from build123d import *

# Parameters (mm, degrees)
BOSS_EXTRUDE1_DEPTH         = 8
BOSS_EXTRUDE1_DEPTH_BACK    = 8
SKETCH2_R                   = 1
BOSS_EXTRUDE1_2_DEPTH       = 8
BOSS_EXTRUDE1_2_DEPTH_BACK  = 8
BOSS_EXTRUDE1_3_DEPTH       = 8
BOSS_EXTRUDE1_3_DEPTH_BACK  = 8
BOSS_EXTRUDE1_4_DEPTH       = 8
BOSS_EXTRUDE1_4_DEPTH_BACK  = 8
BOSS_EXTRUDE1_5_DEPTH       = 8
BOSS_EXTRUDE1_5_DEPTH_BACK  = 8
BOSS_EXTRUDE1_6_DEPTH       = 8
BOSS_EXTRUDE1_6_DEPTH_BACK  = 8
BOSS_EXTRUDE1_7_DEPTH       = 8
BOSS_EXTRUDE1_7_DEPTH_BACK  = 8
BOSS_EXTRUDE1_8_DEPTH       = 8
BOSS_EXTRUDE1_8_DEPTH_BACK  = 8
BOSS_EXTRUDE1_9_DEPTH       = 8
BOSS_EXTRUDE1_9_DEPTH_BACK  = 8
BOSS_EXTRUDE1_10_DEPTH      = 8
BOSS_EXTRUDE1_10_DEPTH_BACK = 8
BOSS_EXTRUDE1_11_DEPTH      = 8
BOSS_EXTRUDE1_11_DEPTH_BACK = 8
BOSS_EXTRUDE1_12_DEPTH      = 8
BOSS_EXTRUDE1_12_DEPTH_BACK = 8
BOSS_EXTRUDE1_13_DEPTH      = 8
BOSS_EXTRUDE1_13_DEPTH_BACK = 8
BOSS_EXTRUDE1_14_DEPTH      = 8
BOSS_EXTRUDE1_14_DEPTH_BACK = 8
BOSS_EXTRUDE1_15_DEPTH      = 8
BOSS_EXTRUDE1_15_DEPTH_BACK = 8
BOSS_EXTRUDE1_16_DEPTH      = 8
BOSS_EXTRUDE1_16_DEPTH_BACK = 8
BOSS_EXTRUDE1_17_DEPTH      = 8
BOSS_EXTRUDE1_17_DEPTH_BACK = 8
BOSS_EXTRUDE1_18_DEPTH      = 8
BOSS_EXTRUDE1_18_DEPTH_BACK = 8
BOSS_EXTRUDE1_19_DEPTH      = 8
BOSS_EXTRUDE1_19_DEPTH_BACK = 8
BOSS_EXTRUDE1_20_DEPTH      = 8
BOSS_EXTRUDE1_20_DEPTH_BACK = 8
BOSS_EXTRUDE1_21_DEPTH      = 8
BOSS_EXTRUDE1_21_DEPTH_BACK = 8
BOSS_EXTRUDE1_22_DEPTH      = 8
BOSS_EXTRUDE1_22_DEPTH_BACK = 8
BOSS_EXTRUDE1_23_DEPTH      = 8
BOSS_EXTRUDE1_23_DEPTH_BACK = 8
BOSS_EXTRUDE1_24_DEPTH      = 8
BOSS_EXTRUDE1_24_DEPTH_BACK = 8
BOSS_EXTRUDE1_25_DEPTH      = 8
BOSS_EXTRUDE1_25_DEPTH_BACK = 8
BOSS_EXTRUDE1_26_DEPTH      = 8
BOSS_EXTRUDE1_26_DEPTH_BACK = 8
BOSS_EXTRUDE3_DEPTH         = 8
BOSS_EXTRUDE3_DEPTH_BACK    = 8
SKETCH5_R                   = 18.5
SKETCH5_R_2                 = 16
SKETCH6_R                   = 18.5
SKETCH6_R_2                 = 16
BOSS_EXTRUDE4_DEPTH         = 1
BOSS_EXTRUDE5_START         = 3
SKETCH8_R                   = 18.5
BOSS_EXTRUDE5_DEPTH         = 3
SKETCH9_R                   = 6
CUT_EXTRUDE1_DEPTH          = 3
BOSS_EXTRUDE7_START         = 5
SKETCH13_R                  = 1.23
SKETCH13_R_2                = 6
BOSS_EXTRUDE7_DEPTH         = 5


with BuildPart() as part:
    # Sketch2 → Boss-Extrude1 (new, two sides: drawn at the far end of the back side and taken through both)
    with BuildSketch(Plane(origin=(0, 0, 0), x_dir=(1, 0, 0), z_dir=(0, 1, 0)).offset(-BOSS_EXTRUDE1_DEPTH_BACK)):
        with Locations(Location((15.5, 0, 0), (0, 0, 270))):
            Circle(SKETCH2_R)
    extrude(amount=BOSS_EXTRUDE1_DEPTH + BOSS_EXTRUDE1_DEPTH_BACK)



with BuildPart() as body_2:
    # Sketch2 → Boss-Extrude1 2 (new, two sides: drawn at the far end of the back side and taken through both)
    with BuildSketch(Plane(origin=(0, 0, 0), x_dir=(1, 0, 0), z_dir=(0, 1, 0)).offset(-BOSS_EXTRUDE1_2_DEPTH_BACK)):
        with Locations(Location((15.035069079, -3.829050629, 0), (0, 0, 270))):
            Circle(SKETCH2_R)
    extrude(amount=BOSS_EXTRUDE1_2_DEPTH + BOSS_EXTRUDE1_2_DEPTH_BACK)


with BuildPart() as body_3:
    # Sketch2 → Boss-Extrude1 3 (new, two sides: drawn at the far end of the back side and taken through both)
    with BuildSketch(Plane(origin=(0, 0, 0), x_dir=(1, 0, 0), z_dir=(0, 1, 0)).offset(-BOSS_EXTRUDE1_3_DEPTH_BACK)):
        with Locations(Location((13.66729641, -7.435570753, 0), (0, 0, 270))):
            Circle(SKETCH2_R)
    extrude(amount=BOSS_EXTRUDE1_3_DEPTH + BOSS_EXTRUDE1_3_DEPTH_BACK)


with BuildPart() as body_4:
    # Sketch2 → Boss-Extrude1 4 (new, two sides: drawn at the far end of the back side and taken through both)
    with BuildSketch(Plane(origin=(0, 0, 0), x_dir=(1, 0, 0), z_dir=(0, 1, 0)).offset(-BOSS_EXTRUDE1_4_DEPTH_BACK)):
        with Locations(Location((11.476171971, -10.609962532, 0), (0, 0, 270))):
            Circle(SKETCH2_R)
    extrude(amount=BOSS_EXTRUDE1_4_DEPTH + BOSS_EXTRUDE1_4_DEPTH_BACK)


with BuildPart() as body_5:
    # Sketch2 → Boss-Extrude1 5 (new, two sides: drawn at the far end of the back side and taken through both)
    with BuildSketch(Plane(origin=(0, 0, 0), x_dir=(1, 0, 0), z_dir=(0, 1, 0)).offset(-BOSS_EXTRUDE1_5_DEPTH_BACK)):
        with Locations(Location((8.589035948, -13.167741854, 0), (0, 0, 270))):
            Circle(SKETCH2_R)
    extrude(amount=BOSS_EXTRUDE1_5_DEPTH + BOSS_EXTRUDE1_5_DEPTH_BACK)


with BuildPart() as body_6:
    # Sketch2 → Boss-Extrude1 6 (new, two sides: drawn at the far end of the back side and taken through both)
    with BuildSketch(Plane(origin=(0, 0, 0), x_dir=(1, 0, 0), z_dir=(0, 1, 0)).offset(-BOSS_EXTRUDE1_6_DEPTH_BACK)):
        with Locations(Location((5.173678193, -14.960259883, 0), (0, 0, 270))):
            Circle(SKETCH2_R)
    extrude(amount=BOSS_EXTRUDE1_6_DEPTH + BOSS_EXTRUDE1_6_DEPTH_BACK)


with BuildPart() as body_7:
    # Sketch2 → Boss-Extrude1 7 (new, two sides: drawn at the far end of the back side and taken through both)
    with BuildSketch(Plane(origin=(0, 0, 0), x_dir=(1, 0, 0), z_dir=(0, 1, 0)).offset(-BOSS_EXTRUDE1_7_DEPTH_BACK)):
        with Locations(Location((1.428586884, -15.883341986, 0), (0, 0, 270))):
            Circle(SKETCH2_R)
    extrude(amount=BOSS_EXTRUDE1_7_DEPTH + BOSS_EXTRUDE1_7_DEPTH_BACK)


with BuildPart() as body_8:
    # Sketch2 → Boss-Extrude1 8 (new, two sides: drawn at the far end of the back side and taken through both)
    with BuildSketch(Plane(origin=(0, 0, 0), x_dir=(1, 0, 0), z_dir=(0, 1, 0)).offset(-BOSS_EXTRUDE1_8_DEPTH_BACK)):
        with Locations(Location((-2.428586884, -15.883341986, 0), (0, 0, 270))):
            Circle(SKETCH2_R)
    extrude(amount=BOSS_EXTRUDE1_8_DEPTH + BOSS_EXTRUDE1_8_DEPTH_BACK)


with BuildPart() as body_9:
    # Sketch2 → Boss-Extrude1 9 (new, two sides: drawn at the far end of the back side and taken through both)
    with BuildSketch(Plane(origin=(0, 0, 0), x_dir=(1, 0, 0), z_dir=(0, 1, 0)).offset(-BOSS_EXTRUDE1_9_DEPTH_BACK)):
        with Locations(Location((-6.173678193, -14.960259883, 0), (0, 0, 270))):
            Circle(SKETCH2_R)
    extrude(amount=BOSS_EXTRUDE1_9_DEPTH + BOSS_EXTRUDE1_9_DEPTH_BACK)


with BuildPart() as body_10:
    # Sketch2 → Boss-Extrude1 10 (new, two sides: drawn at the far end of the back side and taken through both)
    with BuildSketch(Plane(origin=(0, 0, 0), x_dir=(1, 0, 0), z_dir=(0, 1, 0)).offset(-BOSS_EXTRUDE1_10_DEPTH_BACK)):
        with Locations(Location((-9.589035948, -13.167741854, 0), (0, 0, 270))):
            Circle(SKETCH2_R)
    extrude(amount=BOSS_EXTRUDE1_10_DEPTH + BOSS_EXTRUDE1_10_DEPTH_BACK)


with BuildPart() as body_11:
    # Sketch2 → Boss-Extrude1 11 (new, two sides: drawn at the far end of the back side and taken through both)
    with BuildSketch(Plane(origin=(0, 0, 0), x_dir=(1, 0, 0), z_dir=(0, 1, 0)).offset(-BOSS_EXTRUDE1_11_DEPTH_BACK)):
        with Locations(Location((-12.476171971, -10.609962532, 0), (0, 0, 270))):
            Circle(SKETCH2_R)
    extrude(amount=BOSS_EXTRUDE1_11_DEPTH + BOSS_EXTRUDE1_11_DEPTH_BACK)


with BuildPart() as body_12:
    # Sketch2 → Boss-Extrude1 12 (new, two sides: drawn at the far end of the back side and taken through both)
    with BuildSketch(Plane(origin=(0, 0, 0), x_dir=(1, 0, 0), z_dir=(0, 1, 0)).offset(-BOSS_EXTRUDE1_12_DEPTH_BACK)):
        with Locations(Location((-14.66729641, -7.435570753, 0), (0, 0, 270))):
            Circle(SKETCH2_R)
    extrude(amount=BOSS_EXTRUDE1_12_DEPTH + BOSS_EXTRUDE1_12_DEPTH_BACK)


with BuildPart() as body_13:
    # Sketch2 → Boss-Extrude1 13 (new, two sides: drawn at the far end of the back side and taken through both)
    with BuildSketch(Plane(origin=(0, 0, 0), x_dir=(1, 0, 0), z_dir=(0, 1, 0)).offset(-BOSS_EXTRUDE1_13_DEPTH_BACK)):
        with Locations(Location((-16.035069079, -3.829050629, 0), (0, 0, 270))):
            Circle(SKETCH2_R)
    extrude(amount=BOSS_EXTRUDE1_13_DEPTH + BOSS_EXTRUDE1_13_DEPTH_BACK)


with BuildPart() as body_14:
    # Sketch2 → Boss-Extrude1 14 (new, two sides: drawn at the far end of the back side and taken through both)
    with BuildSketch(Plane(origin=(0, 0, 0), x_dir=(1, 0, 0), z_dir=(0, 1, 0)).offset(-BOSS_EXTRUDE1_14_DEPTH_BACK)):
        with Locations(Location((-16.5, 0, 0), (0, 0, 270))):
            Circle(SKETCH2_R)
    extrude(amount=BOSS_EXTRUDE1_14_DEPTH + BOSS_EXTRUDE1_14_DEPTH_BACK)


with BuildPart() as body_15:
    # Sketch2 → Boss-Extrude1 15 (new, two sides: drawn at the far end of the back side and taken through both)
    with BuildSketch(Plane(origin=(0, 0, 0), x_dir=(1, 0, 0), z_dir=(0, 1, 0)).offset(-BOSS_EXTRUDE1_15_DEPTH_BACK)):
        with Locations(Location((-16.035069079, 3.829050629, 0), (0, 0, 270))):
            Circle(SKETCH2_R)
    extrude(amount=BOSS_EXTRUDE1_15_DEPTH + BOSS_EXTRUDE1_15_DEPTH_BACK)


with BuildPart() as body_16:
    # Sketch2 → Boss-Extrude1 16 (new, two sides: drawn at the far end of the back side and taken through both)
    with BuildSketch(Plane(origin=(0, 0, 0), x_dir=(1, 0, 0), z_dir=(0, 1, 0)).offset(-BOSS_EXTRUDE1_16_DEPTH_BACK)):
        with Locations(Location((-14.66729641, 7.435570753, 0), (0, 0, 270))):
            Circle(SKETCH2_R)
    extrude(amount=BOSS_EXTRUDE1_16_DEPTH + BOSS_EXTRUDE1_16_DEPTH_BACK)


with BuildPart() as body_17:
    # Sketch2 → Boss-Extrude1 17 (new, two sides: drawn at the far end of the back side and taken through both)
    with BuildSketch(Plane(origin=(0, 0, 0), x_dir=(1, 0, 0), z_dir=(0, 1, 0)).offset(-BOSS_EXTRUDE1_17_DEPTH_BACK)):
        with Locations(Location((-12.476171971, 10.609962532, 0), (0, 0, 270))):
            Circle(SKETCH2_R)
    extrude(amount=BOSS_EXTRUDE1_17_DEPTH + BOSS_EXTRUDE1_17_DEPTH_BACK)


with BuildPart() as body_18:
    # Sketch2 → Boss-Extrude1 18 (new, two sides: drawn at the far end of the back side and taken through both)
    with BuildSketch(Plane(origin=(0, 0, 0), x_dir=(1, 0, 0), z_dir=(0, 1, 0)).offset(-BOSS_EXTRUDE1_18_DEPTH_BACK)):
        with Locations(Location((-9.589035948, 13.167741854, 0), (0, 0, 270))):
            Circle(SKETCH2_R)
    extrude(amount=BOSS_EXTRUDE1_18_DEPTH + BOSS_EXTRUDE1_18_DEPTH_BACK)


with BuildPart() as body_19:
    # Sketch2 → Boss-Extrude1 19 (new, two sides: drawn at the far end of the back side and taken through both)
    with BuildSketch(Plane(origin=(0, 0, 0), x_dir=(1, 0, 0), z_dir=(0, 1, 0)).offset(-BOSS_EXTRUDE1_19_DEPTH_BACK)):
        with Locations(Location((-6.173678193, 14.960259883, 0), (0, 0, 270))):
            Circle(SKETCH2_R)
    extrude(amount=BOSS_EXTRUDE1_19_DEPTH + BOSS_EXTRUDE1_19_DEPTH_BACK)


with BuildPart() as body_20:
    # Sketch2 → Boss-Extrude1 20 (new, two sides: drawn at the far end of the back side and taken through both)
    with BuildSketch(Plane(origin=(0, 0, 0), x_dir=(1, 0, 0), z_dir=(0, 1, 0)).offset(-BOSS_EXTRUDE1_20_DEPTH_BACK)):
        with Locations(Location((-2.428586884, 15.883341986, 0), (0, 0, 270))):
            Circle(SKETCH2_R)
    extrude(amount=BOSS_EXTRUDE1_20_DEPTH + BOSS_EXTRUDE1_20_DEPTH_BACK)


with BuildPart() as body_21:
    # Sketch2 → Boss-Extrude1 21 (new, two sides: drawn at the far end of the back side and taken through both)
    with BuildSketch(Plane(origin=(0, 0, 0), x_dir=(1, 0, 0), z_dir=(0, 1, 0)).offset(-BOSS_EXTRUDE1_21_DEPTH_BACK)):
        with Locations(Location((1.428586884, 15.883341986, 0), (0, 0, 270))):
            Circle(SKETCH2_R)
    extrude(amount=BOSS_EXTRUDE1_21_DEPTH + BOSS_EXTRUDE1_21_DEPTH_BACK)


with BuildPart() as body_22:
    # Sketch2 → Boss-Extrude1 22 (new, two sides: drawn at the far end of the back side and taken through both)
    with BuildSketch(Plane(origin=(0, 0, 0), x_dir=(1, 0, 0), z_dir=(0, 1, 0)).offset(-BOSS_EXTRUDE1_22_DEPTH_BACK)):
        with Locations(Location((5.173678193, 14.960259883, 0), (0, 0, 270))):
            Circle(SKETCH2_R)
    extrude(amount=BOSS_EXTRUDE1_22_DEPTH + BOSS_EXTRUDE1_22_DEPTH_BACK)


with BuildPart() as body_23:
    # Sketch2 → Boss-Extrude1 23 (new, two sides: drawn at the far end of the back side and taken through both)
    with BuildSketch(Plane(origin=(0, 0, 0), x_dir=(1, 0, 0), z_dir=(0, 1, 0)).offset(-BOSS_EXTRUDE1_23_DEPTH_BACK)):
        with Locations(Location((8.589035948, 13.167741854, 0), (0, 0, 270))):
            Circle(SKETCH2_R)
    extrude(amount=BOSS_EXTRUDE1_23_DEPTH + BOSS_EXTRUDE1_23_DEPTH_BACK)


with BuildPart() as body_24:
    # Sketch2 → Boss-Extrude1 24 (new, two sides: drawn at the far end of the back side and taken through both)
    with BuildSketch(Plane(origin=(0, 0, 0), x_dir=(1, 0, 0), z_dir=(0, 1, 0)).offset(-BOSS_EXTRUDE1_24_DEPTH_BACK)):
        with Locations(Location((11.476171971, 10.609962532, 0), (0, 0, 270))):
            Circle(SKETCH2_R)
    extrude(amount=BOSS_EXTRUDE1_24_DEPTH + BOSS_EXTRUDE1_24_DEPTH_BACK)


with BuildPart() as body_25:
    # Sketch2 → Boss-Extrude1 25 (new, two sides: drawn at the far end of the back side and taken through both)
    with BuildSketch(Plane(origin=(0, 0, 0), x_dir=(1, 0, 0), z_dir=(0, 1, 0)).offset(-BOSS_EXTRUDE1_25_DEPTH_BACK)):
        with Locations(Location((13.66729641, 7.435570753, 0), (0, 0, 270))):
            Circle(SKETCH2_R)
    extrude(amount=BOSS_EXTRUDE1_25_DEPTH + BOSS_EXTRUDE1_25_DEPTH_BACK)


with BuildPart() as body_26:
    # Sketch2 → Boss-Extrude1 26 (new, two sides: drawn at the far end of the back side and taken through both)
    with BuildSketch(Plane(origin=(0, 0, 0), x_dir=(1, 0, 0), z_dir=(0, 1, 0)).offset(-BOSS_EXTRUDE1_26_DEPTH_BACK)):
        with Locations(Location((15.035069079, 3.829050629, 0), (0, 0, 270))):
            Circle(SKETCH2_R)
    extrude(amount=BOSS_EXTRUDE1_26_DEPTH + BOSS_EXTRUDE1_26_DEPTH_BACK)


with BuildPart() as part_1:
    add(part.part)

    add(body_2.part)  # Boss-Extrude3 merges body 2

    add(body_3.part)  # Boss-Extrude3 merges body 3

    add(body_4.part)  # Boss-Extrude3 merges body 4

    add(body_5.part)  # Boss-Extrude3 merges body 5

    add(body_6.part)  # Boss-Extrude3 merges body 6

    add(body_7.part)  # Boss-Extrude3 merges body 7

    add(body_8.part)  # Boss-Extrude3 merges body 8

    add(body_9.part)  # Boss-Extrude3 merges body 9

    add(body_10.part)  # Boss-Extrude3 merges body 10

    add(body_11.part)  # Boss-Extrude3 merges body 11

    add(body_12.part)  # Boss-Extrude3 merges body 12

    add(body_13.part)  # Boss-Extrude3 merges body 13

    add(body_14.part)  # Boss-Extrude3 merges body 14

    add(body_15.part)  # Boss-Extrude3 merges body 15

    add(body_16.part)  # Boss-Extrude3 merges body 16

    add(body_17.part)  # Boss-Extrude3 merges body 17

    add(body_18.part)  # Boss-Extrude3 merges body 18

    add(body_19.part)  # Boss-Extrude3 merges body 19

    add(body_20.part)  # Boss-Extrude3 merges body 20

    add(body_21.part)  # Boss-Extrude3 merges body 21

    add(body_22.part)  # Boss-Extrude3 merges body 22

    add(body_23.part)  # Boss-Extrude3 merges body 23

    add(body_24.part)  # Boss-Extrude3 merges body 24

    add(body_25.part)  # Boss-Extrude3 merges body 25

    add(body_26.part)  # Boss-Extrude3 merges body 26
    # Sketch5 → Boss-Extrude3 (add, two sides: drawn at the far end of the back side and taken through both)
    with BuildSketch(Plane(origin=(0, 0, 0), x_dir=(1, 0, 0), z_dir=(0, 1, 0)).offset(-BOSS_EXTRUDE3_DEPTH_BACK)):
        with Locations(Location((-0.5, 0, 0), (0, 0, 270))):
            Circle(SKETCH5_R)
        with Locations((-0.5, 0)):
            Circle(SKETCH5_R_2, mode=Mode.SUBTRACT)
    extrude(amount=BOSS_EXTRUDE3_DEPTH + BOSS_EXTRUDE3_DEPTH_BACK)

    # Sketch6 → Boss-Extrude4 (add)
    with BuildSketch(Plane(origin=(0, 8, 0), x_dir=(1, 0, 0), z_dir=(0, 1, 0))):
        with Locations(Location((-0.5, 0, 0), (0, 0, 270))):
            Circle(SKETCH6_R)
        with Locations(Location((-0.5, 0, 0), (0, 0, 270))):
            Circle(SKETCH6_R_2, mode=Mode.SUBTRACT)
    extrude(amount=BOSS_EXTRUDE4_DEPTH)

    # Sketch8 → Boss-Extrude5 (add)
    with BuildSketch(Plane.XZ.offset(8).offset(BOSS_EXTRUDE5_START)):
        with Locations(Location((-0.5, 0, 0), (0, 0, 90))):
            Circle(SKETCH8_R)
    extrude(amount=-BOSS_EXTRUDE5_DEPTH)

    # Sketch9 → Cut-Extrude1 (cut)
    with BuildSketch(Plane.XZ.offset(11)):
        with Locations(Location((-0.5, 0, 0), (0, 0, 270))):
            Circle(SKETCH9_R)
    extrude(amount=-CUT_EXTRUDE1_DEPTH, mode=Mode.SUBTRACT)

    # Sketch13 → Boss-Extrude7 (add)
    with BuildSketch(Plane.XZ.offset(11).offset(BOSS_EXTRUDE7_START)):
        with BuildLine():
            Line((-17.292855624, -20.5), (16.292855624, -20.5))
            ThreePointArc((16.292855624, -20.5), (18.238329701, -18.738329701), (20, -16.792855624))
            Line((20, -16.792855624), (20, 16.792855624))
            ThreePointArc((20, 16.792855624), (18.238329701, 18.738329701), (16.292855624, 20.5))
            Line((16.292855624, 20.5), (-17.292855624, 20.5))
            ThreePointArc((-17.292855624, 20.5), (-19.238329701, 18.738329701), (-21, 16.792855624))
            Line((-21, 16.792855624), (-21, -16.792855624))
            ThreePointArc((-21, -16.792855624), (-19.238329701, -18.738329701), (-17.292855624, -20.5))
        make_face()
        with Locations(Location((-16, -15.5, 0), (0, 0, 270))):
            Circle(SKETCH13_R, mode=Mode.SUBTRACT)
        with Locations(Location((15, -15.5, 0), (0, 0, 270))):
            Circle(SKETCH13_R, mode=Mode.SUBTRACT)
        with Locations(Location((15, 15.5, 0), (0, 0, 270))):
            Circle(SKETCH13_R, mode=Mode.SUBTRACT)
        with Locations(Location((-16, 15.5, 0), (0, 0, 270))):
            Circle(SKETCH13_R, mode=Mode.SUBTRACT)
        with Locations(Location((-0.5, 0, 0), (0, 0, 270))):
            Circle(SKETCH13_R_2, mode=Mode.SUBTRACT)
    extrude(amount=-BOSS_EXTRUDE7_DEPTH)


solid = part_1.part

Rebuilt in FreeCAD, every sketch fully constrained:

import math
import FreeCAD as App
import Part
import Sketcher
Q = App.Units.Quantity

doc = App.newDocument("Part")
body = doc.addObject("PartDesign::Body", "Body")

sketch1 = doc.addObject("Sketcher::SketchObject", "Sketch")
body.addObject(sketch1)
sketch1.AttachmentSupport = (doc.XZ_Plane, [""])
sketch1.MapMode = "FlatFace"
sketch1.addGeometry(Part.Circle(App.Vector(15.5, 0, 0), App.Vector(0, 0, 1), 1), False)
sketch1.addConstraint([
    Sketcher.Constraint("PointOnObject", 0, 3, -1),
    Sketcher.Constraint("Diameter", 0, Q("2 mm")),
    Sketcher.Constraint("DistanceX", -1, 1, 0, 3, Q("15.5 mm")),
])
pad1 = doc.addObject("PartDesign::Pad", "Pad")
body.addObject(pad1)
pad1.Profile = sketch1
pad1.Type = "TwoLengths"
pad1.Length = 8
pad1.Length2 = 8
pad1.Reversed = True
body2 = doc.addObject("PartDesign::Body", "Body001")

sketch2 = doc.addObject("Sketcher::SketchObject", "Sketch001")
body2.addObject(sketch2)
sketch2.AttachmentSupport = (doc.getObject("XZ_Plane001"), [""])
sketch2.MapMode = "FlatFace"
sketch2.addGeometry(Part.Circle(App.Vector(15, 3.8, 0), App.Vector(0, 0, 1), 1), False)
sketch2.addConstraint([
    Sketcher.Constraint("Diameter", 0, Q("2 mm")),
    Sketcher.Constraint("DistanceX", -1, 1, 0, 3, Q("15.035069 mm")),
    Sketcher.Constraint("DistanceY", -1, 1, 0, 3, Q("3.829051 mm")),
])
pad2 = doc.addObject("PartDesign::Pad", "Pad001")
body2.addObject(pad2)
pad2.Profile = sketch2
pad2.Type = "TwoLengths"
pad2.Length = 8
pad2.Length2 = 8
pad2.Reversed = True
body3 = doc.addObject("PartDesign::Body", "Body002")

sketch3 = doc.addObject("Sketcher::SketchObject", "Sketch002")
body3.addObject(sketch3)
sketch3.AttachmentSupport = (doc.getObject("XZ_Plane002"), [""])
sketch3.MapMode = "FlatFace"
sketch3.addGeometry(Part.Circle(App.Vector(13.7, 7.4, 0), App.Vector(0, 0, 1), 1), False)
sketch3.addConstraint([
    Sketcher.Constraint("Diameter", 0, Q("2 mm")),
    Sketcher.Constraint("DistanceY", -1, 1, 0, 3, Q("7.435571 mm")),
    Sketcher.Constraint("DistanceX", -1, 1, 0, 3, Q("13.667296 mm")),
])
pad3 = doc.addObject("PartDesign::Pad", "Pad002")
body3.addObject(pad3)
pad3.Profile = sketch3
pad3.Type = "TwoLengths"
pad3.Length = 8
pad3.Length2 = 8
pad3.Reversed = True
body4 = doc.addObject("PartDesign::Body", "Body003")

sketch4 = doc.addObject("Sketcher::SketchObject", "Sketch003")
body4.addObject(sketch4)
sketch4.AttachmentSupport = (doc.getObject("XZ_Plane003"), [""])
sketch4.MapMode = "FlatFace"
sketch4.addGeometry(Part.Circle(App.Vector(11.5, 10.6, 0), App.Vector(0, 0, 1), 1), False)
sketch4.addConstraint([
    Sketcher.Constraint("Diameter", 0, Q("2 mm")),
    Sketcher.Constraint("DistanceX", -1, 1, 0, 3, Q("11.476172 mm")),
    Sketcher.Constraint("DistanceY", -1, 1, 0, 3, Q("10.609963 mm")),
])
pad4 = doc.addObject("PartDesign::Pad", "Pad003")
body4.addObject(pad4)
pad4.Profile = sketch4
pad4.Type = "TwoLengths"
pad4.Length = 8
pad4.Length2 = 8
pad4.Reversed = True
body5 = doc.addObject("PartDesign::Body", "Body004")

sketch5 = doc.addObject("Sketcher::SketchObject", "Sketch004")
body5.addObject(sketch5)
sketch5.AttachmentSupport = (doc.getObject("XZ_Plane004"), [""])
sketch5.MapMode = "FlatFace"
sketch5.addGeometry(Part.Circle(App.Vector(8.6, 13.2, 0), App.Vector(0, 0, 1), 1), False)
sketch5.addConstraint([
    Sketcher.Constraint("Diameter", 0, Q("2 mm")),
    Sketcher.Constraint("DistanceY", -1, 1, 0, 3, Q("13.167742 mm")),
    Sketcher.Constraint("DistanceX", -1, 1, 0, 3, Q("8.589036 mm")),
])
pad5 = doc.addObject("PartDesign::Pad", "Pad004")
body5.addObject(pad5)
pad5.Profile = sketch5
pad5.Type = "TwoLengths"
pad5.Length = 8
pad5.Length2 = 8
pad5.Reversed = True
body6 = doc.addObject("PartDesign::Body", "Body005")

sketch6 = doc.addObject("Sketcher::SketchObject", "Sketch005")
body6.addObject(sketch6)
sketch6.AttachmentSupport = (doc.getObject("XZ_Plane005"), [""])
sketch6.MapMode = "FlatFace"
sketch6.addGeometry(Part.Circle(App.Vector(5.2, 15, 0), App.Vector(0, 0, 1), 1), False)
sketch6.addConstraint([
    Sketcher.Constraint("Diameter", 0, Q("2 mm")),
    Sketcher.Constraint("DistanceX", -1, 1, 0, 3, Q("5.173678 mm")),
    Sketcher.Constraint("DistanceY", -1, 1, 0, 3, Q("14.96026 mm")),
])
pad6 = doc.addObject("PartDesign::Pad", "Pad005")
body6.addObject(pad6)
pad6.Profile = sketch6
pad6.Type = "TwoLengths"
pad6.Length = 8
pad6.Length2 = 8
pad6.Reversed = True
body7 = doc.addObject("PartDesign::Body", "Body006")

sketch7 = doc.addObject("Sketcher::SketchObject", "Sketch006")
body7.addObject(sketch7)
sketch7.AttachmentSupport = (doc.getObject("XZ_Plane006"), [""])
sketch7.MapMode = "FlatFace"
sketch7.addGeometry(Part.Circle(App.Vector(1.4, 15.9, 0), App.Vector(0, 0, 1), 1), False)
sketch7.addConstraint([
    Sketcher.Constraint("Diameter", 0, Q("2 mm")),
    Sketcher.Constraint("DistanceY", -1, 1, 0, 3, Q("15.883342 mm")),
    Sketcher.Constraint("DistanceX", -1, 1, 0, 3, Q("1.428587 mm")),
])
pad7 = doc.addObject("PartDesign::Pad", "Pad006")
body7.addObject(pad7)
pad7.Profile = sketch7
pad7.Type = "TwoLengths"
pad7.Length = 8
pad7.Length2 = 8
pad7.Reversed = True
body8 = doc.addObject("PartDesign::Body", "Body007")

sketch8 = doc.addObject("Sketcher::SketchObject", "Sketch007")
body8.addObject(sketch8)
sketch8.AttachmentSupport = (doc.getObject("XZ_Plane007"), [""])
sketch8.MapMode = "FlatFace"
sketch8.addGeometry(Part.Circle(App.Vector(-2.4, 15.9, 0), App.Vector(0, 0, 1), 1), False)
sketch8.addConstraint([
    Sketcher.Constraint("Diameter", 0, Q("2 mm")),
    Sketcher.Constraint("DistanceY", -1, 1, 0, 3, Q("15.883342 mm")),
    Sketcher.Constraint("DistanceX", 0, 3, -1, 1, Q("2.428587 mm")),
])
pad8 = doc.addObject("PartDesign::Pad", "Pad007")
body8.addObject(pad8)
pad8.Profile = sketch8
pad8.Type = "TwoLengths"
pad8.Length = 8
pad8.Length2 = 8
pad8.Reversed = True
body9 = doc.addObject("PartDesign::Body", "Body008")

sketch9 = doc.addObject("Sketcher::SketchObject", "Sketch008")
body9.addObject(sketch9)
sketch9.AttachmentSupport = (doc.getObject("XZ_Plane008"), [""])
sketch9.MapMode = "FlatFace"
sketch9.addGeometry(Part.Circle(App.Vector(-6.2, 15, 0), App.Vector(0, 0, 1), 1), False)
sketch9.addConstraint([
    Sketcher.Constraint("Diameter", 0, Q("2 mm")),
    Sketcher.Constraint("DistanceX", 0, 3, -1, 1, Q("6.173678 mm")),
    Sketcher.Constraint("DistanceY", -1, 1, 0, 3, Q("14.96026 mm")),
])
pad9 = doc.addObject("PartDesign::Pad", "Pad008")
body9.addObject(pad9)
pad9.Profile = sketch9
pad9.Type = "TwoLengths"
pad9.Length = 8
pad9.Length2 = 8
pad9.Reversed = True
body10 = doc.addObject("PartDesign::Body", "Body009")

sketch10 = doc.addObject("Sketcher::SketchObject", "Sketch009")
body10.addObject(sketch10)
sketch10.AttachmentSupport = (doc.getObject("XZ_Plane009"), [""])
sketch10.MapMode = "FlatFace"
sketch10.addGeometry(Part.Circle(App.Vector(-9.6, 13.2, 0), App.Vector(0, 0, 1), 1), False)
sketch10.addConstraint([
    Sketcher.Constraint("Diameter", 0, Q("2 mm")),
    Sketcher.Constraint("DistanceY", -1, 1, 0, 3, Q("13.167742 mm")),
    Sketcher.Constraint("DistanceX", 0, 3, -1, 1, Q("9.589036 mm")),
])
pad10 = doc.addObject("PartDesign::Pad", "Pad009")
body10.addObject(pad10)
pad10.Profile = sketch10
pad10.Type = "TwoLengths"
pad10.Length = 8
pad10.Length2 = 8
pad10.Reversed = True
body11 = doc.addObject("PartDesign::Body", "Body010")

sketch11 = doc.addObject("Sketcher::SketchObject", "Sketch010")
body11.addObject(sketch11)
sketch11.AttachmentSupport = (doc.getObject("XZ_Plane010"), [""])
sketch11.MapMode = "FlatFace"
sketch11.addGeometry(Part.Circle(App.Vector(-12.5, 10.6, 0), App.Vector(0, 0, 1), 1), False)
sketch11.addConstraint([
    Sketcher.Constraint("Diameter", 0, Q("2 mm")),
    Sketcher.Constraint("DistanceX", 0, 3, -1, 1, Q("12.476172 mm")),
    Sketcher.Constraint("DistanceY", -1, 1, 0, 3, Q("10.609963 mm")),
])
pad11 = doc.addObject("PartDesign::Pad", "Pad010")
body11.addObject(pad11)
pad11.Profile = sketch11
pad11.Type = "TwoLengths"
pad11.Length = 8
pad11.Length2 = 8
pad11.Reversed = True
body12 = doc.addObject("PartDesign::Body", "Body011")

sketch12 = doc.addObject("Sketcher::SketchObject", "Sketch011")
body12.addObject(sketch12)
sketch12.AttachmentSupport = (doc.getObject("XZ_Plane011"), [""])
sketch12.MapMode = "FlatFace"
sketch12.addGeometry(Part.Circle(App.Vector(-14.7, 7.4, 0), App.Vector(0, 0, 1), 1), False)
sketch12.addConstraint([
    Sketcher.Constraint("Diameter", 0, Q("2 mm")),
    Sketcher.Constraint("DistanceY", -1, 1, 0, 3, Q("7.435571 mm")),
    Sketcher.Constraint("DistanceX", 0, 3, -1, 1, Q("14.667296 mm")),
])
pad12 = doc.addObject("PartDesign::Pad", "Pad011")
body12.addObject(pad12)
pad12.Profile = sketch12
pad12.Type = "TwoLengths"
pad12.Length = 8
pad12.Length2 = 8
pad12.Reversed = True
body13 = doc.addObject("PartDesign::Body", "Body012")

sketch13 = doc.addObject("Sketcher::SketchObject", "Sketch012")
body13.addObject(sketch13)
sketch13.AttachmentSupport = (doc.getObject("XZ_Plane012"), [""])
sketch13.MapMode = "FlatFace"
sketch13.addGeometry(Part.Circle(App.Vector(-16, 3.8, 0), App.Vector(0, 0, 1), 1), False)
sketch13.addConstraint([
    Sketcher.Constraint("Diameter", 0, Q("2 mm")),
    Sketcher.Constraint("DistanceX", 0, 3, -1, 1, Q("16.035069 mm")),
    Sketcher.Constraint("DistanceY", -1, 1, 0, 3, Q("3.829051 mm")),
])
pad13 = doc.addObject("PartDesign::Pad", "Pad012")
body13.addObject(pad13)
pad13.Profile = sketch13
pad13.Type = "TwoLengths"
pad13.Length = 8
pad13.Length2 = 8
pad13.Reversed = True
body14 = doc.addObject("PartDesign::Body", "Body013")

sketch14 = doc.addObject("Sketcher::SketchObject", "Sketch013")
body14.addObject(sketch14)
sketch14.AttachmentSupport = (doc.getObject("XZ_Plane013"), [""])
sketch14.MapMode = "FlatFace"
sketch14.addGeometry(Part.Circle(App.Vector(-16.5, 0, 0), App.Vector(0, 0, 1), 1), False)
sketch14.addConstraint([
    Sketcher.Constraint("PointOnObject", 0, 3, -1),
    Sketcher.Constraint("Diameter", 0, Q("2 mm")),
    Sketcher.Constraint("DistanceX", 0, 3, -1, 1, Q("16.5 mm")),
])
pad14 = doc.addObject("PartDesign::Pad", "Pad013")
body14.addObject(pad14)
pad14.Profile = sketch14
pad14.Type = "TwoLengths"
pad14.Length = 8
pad14.Length2 = 8
pad14.Reversed = True
body15 = doc.addObject("PartDesign::Body", "Body014")

sketch15 = doc.addObject("Sketcher::SketchObject", "Sketch014")
body15.addObject(sketch15)
sketch15.AttachmentSupport = (doc.getObject("XZ_Plane014"), [""])
sketch15.MapMode = "FlatFace"
sketch15.addGeometry(Part.Circle(App.Vector(-16, -3.8, 0), App.Vector(0, 0, 1), 1), False)
sketch15.addConstraint([
    Sketcher.Constraint("Diameter", 0, Q("2 mm")),
    Sketcher.Constraint("DistanceX", 0, 3, -1, 1, Q("16.035069 mm")),
    Sketcher.Constraint("DistanceY", 0, 3, -1, 1, Q("3.829051 mm")),
])
pad15 = doc.addObject("PartDesign::Pad", "Pad014")
body15.addObject(pad15)
pad15.Profile = sketch15
pad15.Type = "TwoLengths"
pad15.Length = 8
pad15.Length2 = 8
pad15.Reversed = True
body16 = doc.addObject("PartDesign::Body", "Body015")

sketch16 = doc.addObject("Sketcher::SketchObject", "Sketch015")
body16.addObject(sketch16)
sketch16.AttachmentSupport = (doc.getObject("XZ_Plane015"), [""])
sketch16.MapMode = "FlatFace"
sketch16.addGeometry(Part.Circle(App.Vector(-14.7, -7.4, 0), App.Vector(0, 0, 1), 1), False)
sketch16.addConstraint([
    Sketcher.Constraint("Diameter", 0, Q("2 mm")),
    Sketcher.Constraint("DistanceY", 0, 3, -1, 1, Q("7.435571 mm")),
    Sketcher.Constraint("DistanceX", 0, 3, -1, 1, Q("14.667296 mm")),
])
pad16 = doc.addObject("PartDesign::Pad", "Pad015")
body16.addObject(pad16)
pad16.Profile = sketch16
pad16.Type = "TwoLengths"
pad16.Length = 8
pad16.Length2 = 8
pad16.Reversed = True
body17 = doc.addObject("PartDesign::Body", "Body016")

sketch17 = doc.addObject("Sketcher::SketchObject", "Sketch016")
body17.addObject(sketch17)
sketch17.AttachmentSupport = (doc.getObject("XZ_Plane016"), [""])
sketch17.MapMode = "FlatFace"
sketch17.addGeometry(Part.Circle(App.Vector(-12.5, -10.6, 0), App.Vector(0, 0, 1), 1), False)
sketch17.addConstraint([
    Sketcher.Constraint("Diameter", 0, Q("2 mm")),
    Sketcher.Constraint("DistanceX", 0, 3, -1, 1, Q("12.476172 mm")),
    Sketcher.Constraint("DistanceY", 0, 3, -1, 1, Q("10.609963 mm")),
])
pad17 = doc.addObject("PartDesign::Pad", "Pad016")
body17.addObject(pad17)
pad17.Profile = sketch17
pad17.Type = "TwoLengths"
pad17.Length = 8
pad17.Length2 = 8
pad17.Reversed = True
body18 = doc.addObject("PartDesign::Body", "Body017")

sketch18 = doc.addObject("Sketcher::SketchObject", "Sketch017")
body18.addObject(sketch18)
sketch18.AttachmentSupport = (doc.getObject("XZ_Plane017"), [""])
sketch18.MapMode = "FlatFace"
sketch18.addGeometry(Part.Circle(App.Vector(-9.6, -13.2, 0), App.Vector(0, 0, 1), 1), False)
sketch18.addConstraint([
    Sketcher.Constraint("Diameter", 0, Q("2 mm")),
    Sketcher.Constraint("DistanceY", 0, 3, -1, 1, Q("13.167742 mm")),
    Sketcher.Constraint("DistanceX", 0, 3, -1, 1, Q("9.589036 mm")),
])
pad18 = doc.addObject("PartDesign::Pad", "Pad017")
body18.addObject(pad18)
pad18.Profile = sketch18
pad18.Type = "TwoLengths"
pad18.Length = 8
pad18.Length2 = 8
pad18.Reversed = True
body19 = doc.addObject("PartDesign::Body", "Body018")

sketch19 = doc.addObject("Sketcher::SketchObject", "Sketch018")
body19.addObject(sketch19)
sketch19.AttachmentSupport = (doc.getObject("XZ_Plane018"), [""])
sketch19.MapMode = "FlatFace"
sketch19.addGeometry(Part.Circle(App.Vector(-6.2, -15, 0), App.Vector(0, 0, 1), 1), False)
sketch19.addConstraint([
    Sketcher.Constraint("Diameter", 0, Q("2 mm")),
    Sketcher.Constraint("DistanceX", 0, 3, -1, 1, Q("6.173678 mm")),
    Sketcher.Constraint("DistanceY", 0, 3, -1, 1, Q("14.96026 mm")),
])
pad19 = doc.addObject("PartDesign::Pad", "Pad018")
body19.addObject(pad19)
pad19.Profile = sketch19
pad19.Type = "TwoLengths"
pad19.Length = 8
pad19.Length2 = 8
pad19.Reversed = True
body20 = doc.addObject("PartDesign::Body", "Body019")

sketch20 = doc.addObject("Sketcher::SketchObject", "Sketch019")
body20.addObject(sketch20)
sketch20.AttachmentSupport = (doc.getObject("XZ_Plane019"), [""])
sketch20.MapMode = "FlatFace"
sketch20.addGeometry(Part.Circle(App.Vector(-2.4, -15.9, 0), App.Vector(0, 0, 1), 1), False)
sketch20.addConstraint([
    Sketcher.Constraint("Diameter", 0, Q("2 mm")),
    Sketcher.Constraint("DistanceY", 0, 3, -1, 1, Q("15.883342 mm")),
    Sketcher.Constraint("DistanceX", 0, 3, -1, 1, Q("2.428587 mm")),
])
pad20 = doc.addObject("PartDesign::Pad", "Pad019")
body20.addObject(pad20)
pad20.Profile = sketch20
pad20.Type = "TwoLengths"
pad20.Length = 8
pad20.Length2 = 8
pad20.Reversed = True
body21 = doc.addObject("PartDesign::Body", "Body020")

sketch21 = doc.addObject("Sketcher::SketchObject", "Sketch020")
body21.addObject(sketch21)
sketch21.AttachmentSupport = (doc.getObject("XZ_Plane020"), [""])
sketch21.MapMode = "FlatFace"
sketch21.addGeometry(Part.Circle(App.Vector(1.4, -15.9, 0), App.Vector(0, 0, 1), 1), False)
sketch21.addConstraint([
    Sketcher.Constraint("Diameter", 0, Q("2 mm")),
    Sketcher.Constraint("DistanceY", 0, 3, -1, 1, Q("15.883342 mm")),
    Sketcher.Constraint("DistanceX", -1, 1, 0, 3, Q("1.428587 mm")),
])
pad21 = doc.addObject("PartDesign::Pad", "Pad020")
body21.addObject(pad21)
pad21.Profile = sketch21
pad21.Type = "TwoLengths"
pad21.Length = 8
pad21.Length2 = 8
pad21.Reversed = True
body22 = doc.addObject("PartDesign::Body", "Body021")

sketch22 = doc.addObject("Sketcher::SketchObject", "Sketch021")
body22.addObject(sketch22)
sketch22.AttachmentSupport = (doc.getObject("XZ_Plane021"), [""])
sketch22.MapMode = "FlatFace"
sketch22.addGeometry(Part.Circle(App.Vector(5.2, -15, 0), App.Vector(0, 0, 1), 1), False)
sketch22.addConstraint([
    Sketcher.Constraint("Diameter", 0, Q("2 mm")),
    Sketcher.Constraint("DistanceX", -1, 1, 0, 3, Q("5.173678 mm")),
    Sketcher.Constraint("DistanceY", 0, 3, -1, 1, Q("14.96026 mm")),
])
pad22 = doc.addObject("PartDesign::Pad", "Pad021")
body22.addObject(pad22)
pad22.Profile = sketch22
pad22.Type = "TwoLengths"
pad22.Length = 8
pad22.Length2 = 8
pad22.Reversed = True
body23 = doc.addObject("PartDesign::Body", "Body022")

sketch23 = doc.addObject("Sketcher::SketchObject", "Sketch022")
body23.addObject(sketch23)
sketch23.AttachmentSupport = (doc.getObject("XZ_Plane022"), [""])
sketch23.MapMode = "FlatFace"
sketch23.addGeometry(Part.Circle(App.Vector(8.6, -13.2, 0), App.Vector(0, 0, 1), 1), False)
sketch23.addConstraint([
    Sketcher.Constraint("Diameter", 0, Q("2 mm")),
    Sketcher.Constraint("DistanceY", 0, 3, -1, 1, Q("13.167742 mm")),
    Sketcher.Constraint("DistanceX", -1, 1, 0, 3, Q("8.589036 mm")),
])
pad23 = doc.addObject("PartDesign::Pad", "Pad022")
body23.addObject(pad23)
pad23.Profile = sketch23
pad23.Type = "TwoLengths"
pad23.Length = 8
pad23.Length2 = 8
pad23.Reversed = True
body24 = doc.addObject("PartDesign::Body", "Body023")

sketch24 = doc.addObject("Sketcher::SketchObject", "Sketch023")
body24.addObject(sketch24)
sketch24.AttachmentSupport = (doc.getObject("XZ_Plane023"), [""])
sketch24.MapMode = "FlatFace"
sketch24.addGeometry(Part.Circle(App.Vector(11.5, -10.6, 0), App.Vector(0, 0, 1), 1), False)
sketch24.addConstraint([
    Sketcher.Constraint("Diameter", 0, Q("2 mm")),
    Sketcher.Constraint("DistanceX", -1, 1, 0, 3, Q("11.476172 mm")),
    Sketcher.Constraint("DistanceY", 0, 3, -1, 1, Q("10.609963 mm")),
])
pad24 = doc.addObject("PartDesign::Pad", "Pad023")
body24.addObject(pad24)
pad24.Profile = sketch24
pad24.Type = "TwoLengths"
pad24.Length = 8
pad24.Length2 = 8
pad24.Reversed = True
body25 = doc.addObject("PartDesign::Body", "Body024")

sketch25 = doc.addObject("Sketcher::SketchObject", "Sketch024")
body25.addObject(sketch25)
sketch25.AttachmentSupport = (doc.getObject("XZ_Plane024"), [""])
sketch25.MapMode = "FlatFace"
sketch25.addGeometry(Part.Circle(App.Vector(13.7, -7.4, 0), App.Vector(0, 0, 1), 1), False)
sketch25.addConstraint([
    Sketcher.Constraint("Diameter", 0, Q("2 mm")),
    Sketcher.Constraint("DistanceY", 0, 3, -1, 1, Q("7.435571 mm")),
    Sketcher.Constraint("DistanceX", -1, 1, 0, 3, Q("13.667296 mm")),
])
pad25 = doc.addObject("PartDesign::Pad", "Pad024")
body25.addObject(pad25)
pad25.Profile = sketch25
pad25.Type = "TwoLengths"
pad25.Length = 8
pad25.Length2 = 8
pad25.Reversed = True
body26 = doc.addObject("PartDesign::Body", "Body025")

sketch26 = doc.addObject("Sketcher::SketchObject", "Sketch025")
body26.addObject(sketch26)
sketch26.AttachmentSupport = (doc.getObject("XZ_Plane025"), [""])
sketch26.MapMode = "FlatFace"
sketch26.addGeometry(Part.Circle(App.Vector(15, -3.8, 0), App.Vector(0, 0, 1), 1), False)
sketch26.addConstraint([
    Sketcher.Constraint("Diameter", 0, Q("2 mm")),
    Sketcher.Constraint("DistanceX", -1, 1, 0, 3, Q("15.035069 mm")),
    Sketcher.Constraint("DistanceY", 0, 3, -1, 1, Q("3.829051 mm")),
])
pad26 = doc.addObject("PartDesign::Pad", "Pad025")
body26.addObject(pad26)
pad26.Profile = sketch26
pad26.Type = "TwoLengths"
pad26.Length = 8
pad26.Length2 = 8
pad26.Reversed = True
body.AllowCompound = True
doc.recompute()

boolean = doc.addObject("PartDesign::Boolean", "Boolean")
body.addObject(boolean)
boolean.Type = "Fuse"
boolean.addObjects([body2])
doc.recompute()

boolean2 = doc.addObject("PartDesign::Boolean", "Boolean001")
body.addObject(boolean2)
boolean2.Type = "Fuse"
boolean2.addObjects([body3])
doc.recompute()

boolean3 = doc.addObject("PartDesign::Boolean", "Boolean002")
body.addObject(boolean3)
boolean3.Type = "Fuse"
boolean3.addObjects([body4])
doc.recompute()

boolean4 = doc.addObject("PartDesign::Boolean", "Boolean003")
body.addObject(boolean4)
boolean4.Type = "Fuse"
boolean4.addObjects([body5])
doc.recompute()

boolean5 = doc.addObject("PartDesign::Boolean", "Boolean004")
body.addObject(boolean5)
boolean5.Type = "Fuse"
boolean5.addObjects([body6])
doc.recompute()

boolean6 = doc.addObject("PartDesign::Boolean", "Boolean005")
body.addObject(boolean6)
boolean6.Type = "Fuse"
boolean6.addObjects([body7])
doc.recompute()

boolean7 = doc.addObject("PartDesign::Boolean", "Boolean006")
body.addObject(boolean7)
boolean7.Type = "Fuse"
boolean7.addObjects([body8])
doc.recompute()

boolean8 = doc.addObject("PartDesign::Boolean", "Boolean007")
body.addObject(boolean8)
boolean8.Type = "Fuse"
boolean8.addObjects([body9])
doc.recompute()

boolean9 = doc.addObject("PartDesign::Boolean", "Boolean008")
body.addObject(boolean9)
boolean9.Type = "Fuse"
boolean9.addObjects([body10])
doc.recompute()

boolean10 = doc.addObject("PartDesign::Boolean", "Boolean009")
body.addObject(boolean10)
boolean10.Type = "Fuse"
boolean10.addObjects([body11])
doc.recompute()

boolean11 = doc.addObject("PartDesign::Boolean", "Boolean010")
body.addObject(boolean11)
boolean11.Type = "Fuse"
boolean11.addObjects([body12])
doc.recompute()

boolean12 = doc.addObject("PartDesign::Boolean", "Boolean011")
body.addObject(boolean12)
boolean12.Type = "Fuse"
boolean12.addObjects([body13])
doc.recompute()

boolean13 = doc.addObject("PartDesign::Boolean", "Boolean012")
body.addObject(boolean13)
boolean13.Type = "Fuse"
boolean13.addObjects([body14])
doc.recompute()

boolean14 = doc.addObject("PartDesign::Boolean", "Boolean013")
body.addObject(boolean14)
boolean14.Type = "Fuse"
boolean14.addObjects([body15])
doc.recompute()

boolean15 = doc.addObject("PartDesign::Boolean", "Boolean014")
body.addObject(boolean15)
boolean15.Type = "Fuse"
boolean15.addObjects([body16])
doc.recompute()

boolean16 = doc.addObject("PartDesign::Boolean", "Boolean015")
body.addObject(boolean16)
boolean16.Type = "Fuse"
boolean16.addObjects([body17])
doc.recompute()

boolean17 = doc.addObject("PartDesign::Boolean", "Boolean016")
body.addObject(boolean17)
boolean17.Type = "Fuse"
boolean17.addObjects([body18])
doc.recompute()

boolean18 = doc.addObject("PartDesign::Boolean", "Boolean017")
body.addObject(boolean18)
boolean18.Type = "Fuse"
boolean18.addObjects([body19])
doc.recompute()

boolean19 = doc.addObject("PartDesign::Boolean", "Boolean018")
body.addObject(boolean19)
boolean19.Type = "Fuse"
boolean19.addObjects([body20])
doc.recompute()

boolean20 = doc.addObject("PartDesign::Boolean", "Boolean019")
body.addObject(boolean20)
boolean20.Type = "Fuse"
boolean20.addObjects([body21])
doc.recompute()

boolean21 = doc.addObject("PartDesign::Boolean", "Boolean020")
body.addObject(boolean21)
boolean21.Type = "Fuse"
boolean21.addObjects([body22])
doc.recompute()

boolean22 = doc.addObject("PartDesign::Boolean", "Boolean021")
body.addObject(boolean22)
boolean22.Type = "Fuse"
boolean22.addObjects([body23])
doc.recompute()

boolean23 = doc.addObject("PartDesign::Boolean", "Boolean022")
body.addObject(boolean23)
boolean23.Type = "Fuse"
boolean23.addObjects([body24])
doc.recompute()

boolean24 = doc.addObject("PartDesign::Boolean", "Boolean023")
body.addObject(boolean24)
boolean24.Type = "Fuse"
boolean24.addObjects([body25])
doc.recompute()

boolean25 = doc.addObject("PartDesign::Boolean", "Boolean024")
body.addObject(boolean25)
boolean25.Type = "Fuse"
boolean25.addObjects([body26])

sketch27 = doc.addObject("Sketcher::SketchObject", "Sketch026")
body.addObject(sketch27)
sketch27.AttachmentSupport = (doc.XZ_Plane, [""])
sketch27.MapMode = "FlatFace"
sketch27.addGeometry([
    Part.Circle(App.Vector(0, 0, 0), App.Vector(0, 0, 1), 18),
    Part.Circle(App.Vector(0, 0, 0), App.Vector(0, 0, 1), 16),
], False)
sketch27.addConstraint([
    Sketcher.Constraint("Coincident", 1, 3, 0, 3),
    Sketcher.Constraint("PointOnObject", 0, 3, -1),
    Sketcher.Constraint("Diameter", 0, Q("37 mm")),
    Sketcher.Constraint("Diameter", 1, Q("32 mm")),
    Sketcher.Constraint("DistanceX", 0, 3, -1, 1, Q("0.5 mm")),
])
pad27 = doc.addObject("PartDesign::Pad", "Pad026")
body.addObject(pad27)
pad27.Profile = sketch27
pad27.Type = "TwoLengths"
pad27.Length = 8
pad27.Length2 = 8
pad27.Reversed = True

sketch28 = doc.addObject("Sketcher::SketchObject", "Sketch027")
body.addObject(sketch28)
sketch28.AttachmentSupport = (doc.XZ_Plane, [""])
sketch28.MapMode = "FlatFace"
sketch28.AttachmentOffset = App.Placement(App.Vector(0, 0, -8), App.Rotation())
sketch28.addGeometry([
    Part.Circle(App.Vector(0, 0, 0), App.Vector(0, 0, 1), 18),
    Part.Circle(App.Vector(0, 0, 0), App.Vector(0, 0, 1), 16),
], False)
sketch28.addConstraint([
    Sketcher.Constraint("Coincident", 1, 3, 0, 3),
    Sketcher.Constraint("PointOnObject", 0, 3, -1),
    Sketcher.Constraint("Diameter", 0, Q("37 mm")),
    Sketcher.Constraint("Diameter", 1, Q("32 mm")),
    Sketcher.Constraint("DistanceX", 0, 3, -1, 1, Q("0.5 mm")),
])
pad28 = doc.addObject("PartDesign::Pad", "Pad027")
body.addObject(pad28)
pad28.Profile = sketch28
pad28.Length = 1
pad28.Reversed = True

sketch29 = doc.addObject("Sketcher::SketchObject", "Sketch028")
body.addObject(sketch29)
sketch29.AttachmentSupport = (doc.XZ_Plane, [""])
sketch29.MapMode = "FlatFace"
sketch29.AttachmentOffset = App.Placement(App.Vector(0, 0, 11), App.Rotation())
sketch29.addGeometry(Part.Circle(App.Vector(0, 0, 0), App.Vector(0, 0, 1), 18), False)
sketch29.addConstraint([
    Sketcher.Constraint("PointOnObject", 0, 3, -1),
    Sketcher.Constraint("Diameter", 0, Q("37 mm")),
    Sketcher.Constraint("DistanceX", 0, 3, -1, 1, Q("0.5 mm")),
])
pad29 = doc.addObject("PartDesign::Pad", "Pad028")
body.addObject(pad29)
pad29.Profile = sketch29
pad29.Length = 3
pad29.Reversed = True

sketch30 = doc.addObject("Sketcher::SketchObject", "Sketch029")
body.addObject(sketch30)
sketch30.AttachmentSupport = (doc.XZ_Plane, [""])
sketch30.MapMode = "FlatFace"
sketch30.AttachmentOffset = App.Placement(App.Vector(0, 0, 11), App.Rotation())
sketch30.addGeometry(Part.Circle(App.Vector(0, 0, 0), App.Vector(0, 0, 1), 6), False)
sketch30.addConstraint([
    Sketcher.Constraint("PointOnObject", 0, 3, -1),
    Sketcher.Constraint("Diameter", 0, Q("12 mm")),
    Sketcher.Constraint("DistanceX", 0, 3, -1, 1, Q("0.5 mm")),
])
pocket1 = doc.addObject("PartDesign::Pocket", "Pocket")
body.addObject(pocket1)
pocket1.Profile = sketch30
pocket1.Length = 3

sketch31 = doc.addObject("Sketcher::SketchObject", "Sketch030")
body.addObject(sketch31)
sketch31.AttachmentSupport = (doc.XZ_Plane, [""])
sketch31.MapMode = "FlatFace"
sketch31.AttachmentOffset = App.Placement(App.Vector(0, 0, 16), App.Rotation())
sketch31.addGeometry([
    Part.LineSegment(App.Vector(-17.3, -20.5, 0), App.Vector(16.3, -20.5, 0)),
    Part.ArcOfCircle(Part.Circle(App.Vector(-0.5, 0, 0), App.Vector(0, 0, 1), 26.5), math.radians(-50.68), math.radians(-39.32)),
    Part.LineSegment(App.Vector(20, -16.8, 0), App.Vector(20, 16.8, 0)),
    Part.ArcOfCircle(Part.Circle(App.Vector(-0.5, 0, 0), App.Vector(0, 0, 1), 26.5), math.radians(39.32), math.radians(50.68)),
    Part.LineSegment(App.Vector(16.3, 20.5, 0), App.Vector(-17.3, 20.5, 0)),
    Part.ArcOfCircle(Part.Circle(App.Vector(-0.5, 0, 0), App.Vector(0, 0, 1), 26.5), math.radians(129.32), math.radians(140.68)),
    Part.LineSegment(App.Vector(-21, 16.8, 0), App.Vector(-21, -16.8, 0)),
    Part.ArcOfCircle(Part.Circle(App.Vector(-0.5, 0, 0), App.Vector(0, 0, 1), 26.5), math.radians(-140.68), math.radians(-129.32)),
    Part.Circle(App.Vector(-16, -15.5, 0), App.Vector(0, 0, 1), 1.2),
    Part.Circle(App.Vector(15, -15.5, 0), App.Vector(0, 0, 1), 1.2),
    Part.Circle(App.Vector(-16, 15.5, 0), App.Vector(0, 0, 1), 1.2),
    Part.Circle(App.Vector(-0.5, 0, 0), App.Vector(0, 0, 1), 6),
    Part.Circle(App.Vector(15, 15.5, 0), App.Vector(0, 0, 1), 1.2),
], False)
sketch31.addConstraint([
    Sketcher.Constraint("Coincident", 0, 2, 1, 1),
    Sketcher.Constraint("Coincident", 1, 2, 2, 1),
    Sketcher.Constraint("Coincident", 2, 2, 3, 1),
    Sketcher.Constraint("Coincident", 3, 2, 4, 1),
    Sketcher.Constraint("Coincident", 4, 2, 5, 1),
    Sketcher.Constraint("Coincident", 5, 2, 6, 1),
    Sketcher.Constraint("Coincident", 6, 2, 7, 1),
    Sketcher.Constraint("Coincident", 7, 2, 0, 1),
    Sketcher.Constraint("Horizontal", 0),
    Sketcher.Constraint("Vertical", 2),
    Sketcher.Constraint("Horizontal", 4),
    Sketcher.Constraint("Vertical", 6),
    Sketcher.Constraint("Coincident", 3, 3, 1, 3),
    Sketcher.Constraint("Coincident", 5, 3, 1, 3),
    Sketcher.Constraint("Coincident", 7, 3, 1, 3),
    Sketcher.Constraint("Coincident", 11, 3, 1, 3),
    Sketcher.Constraint("Equal", 1, 3),
    Sketcher.Constraint("Equal", 3, 5),
    Sketcher.Constraint("Equal", 5, 7),
    Sketcher.Constraint("Equal", 8, 9),
    Sketcher.Constraint("Equal", 9, 10),
    Sketcher.Constraint("Equal", 10, 12),
    Sketcher.Constraint("Symmetric", 8, 3, 10, 3, -1),
    Sketcher.Constraint("Symmetric", 9, 3, 12, 3, -1),
    Sketcher.Constraint("Symmetric", 0, 2, 3, 2, -1),
    Sketcher.Constraint("Horizontal", 8, 3, 9, 3),
    Sketcher.Constraint("Horizontal", 2, 2, 5, 2),
    Sketcher.Constraint("Equal", 4, 2),
    Sketcher.Constraint("Diameter", 11, Q("12 mm")),
    Sketcher.Constraint("Radius", 1, Q("26.5 mm")),
    Sketcher.Constraint("Diameter", 8, Q("2.46 mm")),
    Sketcher.Constraint("DistanceX", 8, 3, -1, 1, Q("16 mm")),
    Sketcher.Constraint("DistanceX", -1, 1, 9, 3, Q("15 mm")),
    Sketcher.Constraint("DistanceX", -1, 1, 1, 2, Q("20 mm")),
    Sketcher.Constraint("DistanceX", 5, 2, -1, 1, Q("21 mm")),
    Sketcher.Constraint("DistanceY", 8, 3, 10, 3, Q("31 mm")),
])
pad30 = doc.addObject("PartDesign::Pad", "Pad029")
body.addObject(pad30)
pad30.Profile = sketch31
pad30.Length = 5
pad30.Reversed = True

doc.recompute()
